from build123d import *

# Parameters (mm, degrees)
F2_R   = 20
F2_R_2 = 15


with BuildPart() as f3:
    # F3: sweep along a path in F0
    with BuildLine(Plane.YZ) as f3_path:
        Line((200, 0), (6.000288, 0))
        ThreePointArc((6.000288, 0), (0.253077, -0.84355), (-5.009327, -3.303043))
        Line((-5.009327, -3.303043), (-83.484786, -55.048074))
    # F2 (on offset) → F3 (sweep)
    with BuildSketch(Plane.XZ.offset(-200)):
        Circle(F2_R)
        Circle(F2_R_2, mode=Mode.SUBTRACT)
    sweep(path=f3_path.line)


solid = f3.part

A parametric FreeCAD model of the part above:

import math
import FreeCAD as App
import Part
import Sketcher

V = App.Vector
Q = App.Units.Quantity

doc = App.newDocument("Part")
body = doc.addObject("PartDesign::Body", "Body")

# Sketch on XZ plane
sketch1 = doc.addObject("Sketcher::SketchObject", "Sketch")
body.addObject(sketch1)
sketch1.AttachmentSupport = (doc.XZ_Plane, [""])
sketch1.MapMode = "FlatFace"
sketch1.AttachmentOffset = App.Placement(V(0, 0, -200), App.Rotation())
sketch1.addGeometry([
    Part.Circle(V(0, 0, 0), V(0, 0, 1), 20),
    Part.Circle(V(0, 0, 0), V(0, 0, 1), 15),
], False)
sketch1.addConstraint([
    Sketcher.Constraint("Coincident", 0, 3, -1, 1),
    Sketcher.Constraint("Coincident", 1, 3, -1, 1),
    Sketcher.Constraint("Diameter", 0, 40.0),
    Sketcher.Constraint("Diameter", 1, 30.0),
])

# Sketch on YZ plane
sketch2 = doc.addObject("Sketcher::SketchObject", "Sketch001")
body.addObject(sketch2)
sketch2.AttachmentSupport = (doc.YZ_Plane, [""])
sketch2.MapMode = "FlatFace"
sketch2.addGeometry([
    Part.LineSegment(V(200, 0, 0), V(6, 0, 0)),
    Part.ArcOfCircle(Part.Circle(V(6, -20, 0), V(0, 0, 1), 20), math.radians(90), math.radians(123)),
    Part.LineSegment(V(-5, -3, 0), V(-83, -55, 0)),
], False)
sketch2.addConstraint([
    Sketcher.Constraint("Tangent", 0, 2, 1, 1),
    Sketcher.Constraint("Tangent", 1, 2, 2, 1),
    Sketcher.Constraint("Horizontal", 0),
    Sketcher.Constraint("PointOnObject", 0, 1, -1),
    Sketcher.Constraint("DistanceX", -1, 1, 0, 1, 200.0),
    Sketcher.Constraint("Angle", 2, Q("-146.6 deg")),
    Sketcher.Constraint("Radius", 1, 19.999992),
    Sketcher.Constraint("DistanceX", 0, 2, 0, 1, 193.999712),
    Sketcher.Constraint("DistanceX", 2, 2, 1, 2, 78.475459),
])
doc.recompute()

additivepipe = doc.addObject("PartDesign::AdditivePipe", "AdditivePipe")
body.addObject(additivepipe)
additivepipe.Profile = sketch1
additivepipe.Spine = (sketch2, ["Edge1", "Edge2", "Edge3"])

doc.recompute()
